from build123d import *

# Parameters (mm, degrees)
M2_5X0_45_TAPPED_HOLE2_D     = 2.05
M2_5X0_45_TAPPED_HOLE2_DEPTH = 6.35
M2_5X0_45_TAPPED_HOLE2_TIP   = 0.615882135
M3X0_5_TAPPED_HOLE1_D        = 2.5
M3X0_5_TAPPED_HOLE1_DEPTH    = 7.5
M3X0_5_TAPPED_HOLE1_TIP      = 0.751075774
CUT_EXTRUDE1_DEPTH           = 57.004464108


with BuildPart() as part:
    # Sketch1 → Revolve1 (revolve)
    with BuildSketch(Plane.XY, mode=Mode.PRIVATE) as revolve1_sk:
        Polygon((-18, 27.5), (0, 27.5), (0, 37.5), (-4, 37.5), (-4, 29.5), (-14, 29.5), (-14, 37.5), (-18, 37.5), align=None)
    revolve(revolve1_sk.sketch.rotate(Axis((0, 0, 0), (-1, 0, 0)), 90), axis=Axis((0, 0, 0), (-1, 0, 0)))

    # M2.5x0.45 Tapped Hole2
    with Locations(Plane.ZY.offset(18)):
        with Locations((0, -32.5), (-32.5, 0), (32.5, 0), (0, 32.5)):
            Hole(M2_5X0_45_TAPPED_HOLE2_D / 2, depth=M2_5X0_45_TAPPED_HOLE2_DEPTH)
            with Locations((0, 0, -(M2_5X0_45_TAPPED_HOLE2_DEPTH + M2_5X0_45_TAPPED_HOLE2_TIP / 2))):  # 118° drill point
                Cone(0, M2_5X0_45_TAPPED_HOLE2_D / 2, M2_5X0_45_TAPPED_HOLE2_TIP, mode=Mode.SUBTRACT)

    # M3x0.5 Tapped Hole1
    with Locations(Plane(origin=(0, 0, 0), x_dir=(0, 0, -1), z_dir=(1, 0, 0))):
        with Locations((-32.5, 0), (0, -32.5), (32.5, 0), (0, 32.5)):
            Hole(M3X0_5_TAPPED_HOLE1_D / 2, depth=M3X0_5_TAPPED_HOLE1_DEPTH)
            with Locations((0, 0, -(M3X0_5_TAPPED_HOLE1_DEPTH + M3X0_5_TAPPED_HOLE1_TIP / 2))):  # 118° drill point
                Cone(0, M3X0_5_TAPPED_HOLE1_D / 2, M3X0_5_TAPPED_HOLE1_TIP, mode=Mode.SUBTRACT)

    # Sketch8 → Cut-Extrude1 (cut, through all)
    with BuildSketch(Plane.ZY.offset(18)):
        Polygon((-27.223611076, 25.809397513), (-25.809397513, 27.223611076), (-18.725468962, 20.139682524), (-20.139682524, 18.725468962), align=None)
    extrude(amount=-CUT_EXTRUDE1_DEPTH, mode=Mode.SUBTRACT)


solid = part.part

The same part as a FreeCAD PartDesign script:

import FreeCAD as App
import Part
import Sketcher
Q = App.Units.Quantity


def add_polygon(sketch, points):
    """Adds a closed chain of lines whose ends are joined by coincident constraints."""
    first, n = sketch.GeometryCount, len(points)
    for a, b in zip(points, points[1:] + points[:1]):
        sketch.addGeometry(Part.LineSegment(App.Vector(*a, 0), App.Vector(*b, 0)), False)
    for i in range(n):
        sketch.addConstraint(Sketcher.Constraint("Coincident", first + i, 2, first + (i + 1) % n, 1))

doc = App.newDocument("Part")
body = doc.addObject("PartDesign::Body", "Body")

# Sketch on XY plane
sketch1 = body.newObject("Sketcher::SketchObject", "Sketch")
sketch1.AttachmentSupport = (doc.getObject("XY_Plane"), [""])
sketch1.MapMode = "FlatFace"
add_polygon(sketch1, [(-18, 27.5), (0, 27.5), (0, 37.5), (-4, 37.5), (-4, 29.5), (-14, 29.5), (-14, 37.5), (-18, 37.5)])  # lines 0-7
sketch1.addConstraint([
    Sketcher.Constraint("Horizontal", 0),
    Sketcher.Constraint("Vertical", 1),
    Sketcher.Constraint("Horizontal", 2),
    Sketcher.Constraint("Vertical", 3),
    Sketcher.Constraint("Horizontal", 4),
    Sketcher.Constraint("Vertical", 5),
    Sketcher.Constraint("Horizontal", 6),
    Sketcher.Constraint("Vertical", 7),
    Sketcher.Constraint("PointOnObject", 0, 2, -2),
    Sketcher.Constraint("Horizontal", 2, 2, 5, 2),
    Sketcher.Constraint("Equal", 2, 6),
    Sketcher.Constraint("Equal", 4, 1),
    Sketcher.Constraint("DistanceX", 0, 1, 0, 2, 18.0),
    Sketcher.Constraint("DistanceX", 2, 2, 2, 1, 4.0),
    Sketcher.Constraint("DistanceY", 3, 2, 3, 1, 8.0),
    Sketcher.Constraint("DistanceY", -1, 1, 0, 2, 27.5),
])
revolution = body.newObject("PartDesign::Revolution", "Revolution")
revolution.Profile = sketch1
revolution.ReferenceAxis = (sketch1, ["H_Axis"])
revolution.Angle = 360

# Sketch on YZ plane
sketch2 = body.newObject("Sketcher::SketchObject", "Sketch001")
sketch2.AttachmentSupport = (doc.getObject("YZ_Plane"), [""])
sketch2.MapMode = "FlatFace"
sketch2.AttachmentOffset = App.Placement(App.Vector(0, 0, -18), App.Rotation())
sketch2.addGeometry([
    Part.Circle(App.Vector(-32.5, 0, 0), App.Vector(0, 0, 1), 1),
    Part.Circle(App.Vector(0, -32.5, 0), App.Vector(0, 0, 1), 1),
    Part.Circle(App.Vector(0, 32.5, 0), App.Vector(0, 0, 1), 1),
    Part.Circle(App.Vector(32.5, 0, 0), App.Vector(0, 0, 1), 1),
], False)
sketch2.addConstraint([
    Sketcher.Constraint("Equal", 0, 1),
    Sketcher.Constraint("Equal", 1, 2),
    Sketcher.Constraint("Equal", 2, 3),
    Sketcher.Constraint("Symmetric", 1, 3, 2, 3, -1, 1),
    Sketcher.Constraint("Symmetric", 0, 3, 3, 3, -1, 1),
    Sketcher.Constraint("PointOnObject", 0, 3, -1),
    Sketcher.Constraint("PointOnObject", 1, 3, -2),
    Sketcher.Constraint("Diameter", 0, 2.05),
    Sketcher.Constraint("DistanceY", 1, 3, 2, 3, 65.0),
    Sketcher.Constraint("DistanceX", 0, 3, 3, 3, 65.0),
])
doc.recompute()
hole = body.newObject("PartDesign::Hole", "Hole")
hole.Profile = sketch2
hole.ThreadType = "None"
hole.Diameter = 2.05
hole.DepthType = "Dimension"
hole.Depth = 6.35
hole.DrillPoint = "Angled"
hole.DrillPointAngle = 118
hole.Reversed = True

# Sketch on YZ plane
sketch3 = body.newObject("Sketcher::SketchObject", "Sketch002")
sketch3.AttachmentSupport = (doc.getObject("YZ_Plane"), [""])
sketch3.MapMode = "FlatFace"
sketch3.addGeometry([
    Part.Circle(App.Vector(0, 32.5, 0), App.Vector(0, 0, 1), 1.2),
    Part.Circle(App.Vector(-32.5, 0, 0), App.Vector(0, 0, 1), 1.2),
    Part.Circle(App.Vector(0, -32.5, 0), App.Vector(0, 0, 1), 1.2),
    Part.Circle(App.Vector(32.5, 0, 0), App.Vector(0, 0, 1), 1.2),
], False)
sketch3.addConstraint([
    Sketcher.Constraint("Equal", 0, 1),
    Sketcher.Constraint("Equal", 1, 2),
    Sketcher.Constraint("Equal", 2, 3),
    Sketcher.Constraint("Symmetric", 0, 3, 2, 3, -1, 1),
    Sketcher.Constraint("Symmetric", 1, 3, 3, 3, -1, 1),
    Sketcher.Constraint("PointOnObject", 0, 3, -2),
    Sketcher.Constraint("PointOnObject", 1, 3, -1),
    Sketcher.Constraint("Diameter", 0, 2.5),
    Sketcher.Constraint("DistanceY", 2, 3, 0, 3, 65.0),
    Sketcher.Constraint("DistanceX", 1, 3, 3, 3, 65.0),
])
doc.recompute()
hole2 = body.newObject("PartDesign::Hole", "Hole001")
hole2.Profile = sketch3
hole2.ThreadType = "None"
hole2.Diameter = 2.5
hole2.DepthType = "Dimension"
hole2.Depth = 7.5
hole2.DrillPoint = "Angled"
hole2.DrillPointAngle = 118

# Sketch on YZ plane
sketch4 = body.newObject("Sketcher::SketchObject", "Sketch003")
sketch4.AttachmentSupport = (doc.getObject("YZ_Plane"), [""])
sketch4.MapMode = "FlatFace"
sketch4.AttachmentOffset = App.Placement(App.Vector(0, 0, -18), App.Rotation())
add_polygon(sketch4, [(27.2, -25.8), (25.8, -27.2), (18.7, -20.1), (20.1, -18.7)])  # lines 0-3
sketch4.addConstraint([
    Sketcher.Constraint("Perpendicular", 0, 1),
    Sketcher.Constraint("Perpendicular", 1, 2),
    Sketcher.Constraint("Perpendicular", 2, 3),
    Sketcher.Constraint("Angle", 0, Q("-135 deg")),
    Sketcher.Constraint("Distance", 0, 2.0),
    Sketcher.Constraint("DistanceY", 0, 2, -1, 1, 27.223611),
    Sketcher.Constraint("DistanceX", -1, 1, 1, 2, 18.725469),
    Sketcher.Constraint("DistanceY", 2, 2, -1, 1, 18.725469),
])
pocket1 = body.newObject("PartDesign::Pocket", "Pocket")
pocket1.Profile = sketch4
pocket1.Type = "ThroughAll"
pocket1.Reversed = True

doc.recompute()
